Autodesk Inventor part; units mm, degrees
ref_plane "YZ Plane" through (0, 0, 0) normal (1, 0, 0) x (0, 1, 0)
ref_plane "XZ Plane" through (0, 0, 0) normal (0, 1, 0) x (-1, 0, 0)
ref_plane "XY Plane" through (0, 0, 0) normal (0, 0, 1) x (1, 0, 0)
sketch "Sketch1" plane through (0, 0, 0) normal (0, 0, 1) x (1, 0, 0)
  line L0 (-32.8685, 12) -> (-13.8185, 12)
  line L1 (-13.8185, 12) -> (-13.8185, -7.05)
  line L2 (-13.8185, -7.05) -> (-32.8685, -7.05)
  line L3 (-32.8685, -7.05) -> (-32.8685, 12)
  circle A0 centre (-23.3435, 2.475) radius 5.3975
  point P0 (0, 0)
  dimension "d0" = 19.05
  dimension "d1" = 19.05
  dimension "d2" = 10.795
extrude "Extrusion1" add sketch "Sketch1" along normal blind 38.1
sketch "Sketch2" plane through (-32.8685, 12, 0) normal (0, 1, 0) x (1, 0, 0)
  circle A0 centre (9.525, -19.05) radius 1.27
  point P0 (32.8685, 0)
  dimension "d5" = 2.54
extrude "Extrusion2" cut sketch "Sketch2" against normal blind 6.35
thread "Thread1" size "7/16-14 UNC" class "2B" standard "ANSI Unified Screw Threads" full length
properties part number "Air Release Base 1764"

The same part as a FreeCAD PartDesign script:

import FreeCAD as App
import Part
import Sketcher

V = App.Vector
Q = App.Units.Quantity

doc = App.newDocument("Part")
body = doc.addObject("PartDesign::Body", "Body")

sketch1 = body.newObject("Sketcher::SketchObject", "Sketch")
sketch1.AttachmentSupport = (doc.getObject("XY_Plane"), [""])
sketch1.MapMode = "FlatFace"
sketch1.addGeometry(Part.LineSegment(V(-13.8185, 12, 0), V(-32.8685, 12, 0)), False)
sketch1.addGeometry(Part.LineSegment(V(-32.8685, 12, 0), V(-32.8685, -7.05, 0)), False)
sketch1.addGeometry(Part.LineSegment(V(-32.8685, -7.05, 0), V(-13.8185, -7.05, 0)), False)
sketch1.addGeometry(Part.LineSegment(V(-13.8185, -7.05, 0), V(-13.8185, 12, 0)), False)
sketch1.addGeometry(Part.Circle(V(-23.3435, 2.475, 0), V(0, 0, 1), 5.3975), False)
sketch1.addConstraint(Sketcher.Constraint("Coincident", 0, 2, 1, 1))
sketch1.addConstraint(Sketcher.Constraint("Coincident", 1, 2, 2, 1))
sketch1.addConstraint(Sketcher.Constraint("Coincident", 2, 2, 3, 1))
sketch1.addConstraint(Sketcher.Constraint("Coincident", 3, 2, 0, 1))
sketch1.addConstraint(Sketcher.Constraint("Horizontal", 0))
sketch1.addConstraint(Sketcher.Constraint("Vertical", 1))
sketch1.addConstraint(Sketcher.Constraint("Horizontal", 2))
sketch1.addConstraint(Sketcher.Constraint("Vertical", 3))
sketch1.addConstraint(Sketcher.Constraint("Equal", 2, 1))
sketch1.addConstraint(Sketcher.Constraint("Diameter", 4, Q("0.425 in")))
sketch1.addConstraint(Sketcher.Constraint("DistanceX", 0, 2, 0, 1, Q("0.75 in")))
sketch1.addConstraint(Sketcher.Constraint("DistanceX", 0, 2, 4, 3, Q("0.375 in")))
sketch1.addConstraint(Sketcher.Constraint("DistanceY", 4, 3, 0, 2, Q("0.375 in")))
sketch1.addConstraint(Sketcher.Constraint("DistanceX", 4, 3, -1, 1, 23.3435))
sketch1.addConstraint(Sketcher.Constraint("DistanceY", -1, 1, 4, 3, 2.475))
pad1 = body.newObject("PartDesign::Pad", "Pad")
pad1.Profile = sketch1
pad1.Length = Q("1.5 in")

sketch2 = body.newObject("Sketcher::SketchObject", "Sketch001")
sketch2.AttachmentSupport = (doc.getObject("XZ_Plane"), [""])
sketch2.MapMode = "FlatFace"
sketch2.AttachmentOffset = App.Placement(V(0, 0, -12), App.Rotation())
sketch2.addGeometry(Part.Circle(V(-23.3435, 19.05, 0), V(0, 0, 1), 1.27), False)
sketch2.addConstraint(Sketcher.Constraint("Diameter", 0, Q("0.1 in")))
sketch2.addConstraint(Sketcher.Constraint("DistanceY", -1, 1, 0, 3, Q("0.75 in")))
sketch2.addConstraint(Sketcher.Constraint("DistanceX", 0, 3, -1, 1, 23.3435))
pocket1 = body.newObject("PartDesign::Pocket", "Pocket")
pocket1.Profile = sketch2
pocket1.Length = Q("0.25 in")
pocket1.Reversed = True

doc.recompute()
